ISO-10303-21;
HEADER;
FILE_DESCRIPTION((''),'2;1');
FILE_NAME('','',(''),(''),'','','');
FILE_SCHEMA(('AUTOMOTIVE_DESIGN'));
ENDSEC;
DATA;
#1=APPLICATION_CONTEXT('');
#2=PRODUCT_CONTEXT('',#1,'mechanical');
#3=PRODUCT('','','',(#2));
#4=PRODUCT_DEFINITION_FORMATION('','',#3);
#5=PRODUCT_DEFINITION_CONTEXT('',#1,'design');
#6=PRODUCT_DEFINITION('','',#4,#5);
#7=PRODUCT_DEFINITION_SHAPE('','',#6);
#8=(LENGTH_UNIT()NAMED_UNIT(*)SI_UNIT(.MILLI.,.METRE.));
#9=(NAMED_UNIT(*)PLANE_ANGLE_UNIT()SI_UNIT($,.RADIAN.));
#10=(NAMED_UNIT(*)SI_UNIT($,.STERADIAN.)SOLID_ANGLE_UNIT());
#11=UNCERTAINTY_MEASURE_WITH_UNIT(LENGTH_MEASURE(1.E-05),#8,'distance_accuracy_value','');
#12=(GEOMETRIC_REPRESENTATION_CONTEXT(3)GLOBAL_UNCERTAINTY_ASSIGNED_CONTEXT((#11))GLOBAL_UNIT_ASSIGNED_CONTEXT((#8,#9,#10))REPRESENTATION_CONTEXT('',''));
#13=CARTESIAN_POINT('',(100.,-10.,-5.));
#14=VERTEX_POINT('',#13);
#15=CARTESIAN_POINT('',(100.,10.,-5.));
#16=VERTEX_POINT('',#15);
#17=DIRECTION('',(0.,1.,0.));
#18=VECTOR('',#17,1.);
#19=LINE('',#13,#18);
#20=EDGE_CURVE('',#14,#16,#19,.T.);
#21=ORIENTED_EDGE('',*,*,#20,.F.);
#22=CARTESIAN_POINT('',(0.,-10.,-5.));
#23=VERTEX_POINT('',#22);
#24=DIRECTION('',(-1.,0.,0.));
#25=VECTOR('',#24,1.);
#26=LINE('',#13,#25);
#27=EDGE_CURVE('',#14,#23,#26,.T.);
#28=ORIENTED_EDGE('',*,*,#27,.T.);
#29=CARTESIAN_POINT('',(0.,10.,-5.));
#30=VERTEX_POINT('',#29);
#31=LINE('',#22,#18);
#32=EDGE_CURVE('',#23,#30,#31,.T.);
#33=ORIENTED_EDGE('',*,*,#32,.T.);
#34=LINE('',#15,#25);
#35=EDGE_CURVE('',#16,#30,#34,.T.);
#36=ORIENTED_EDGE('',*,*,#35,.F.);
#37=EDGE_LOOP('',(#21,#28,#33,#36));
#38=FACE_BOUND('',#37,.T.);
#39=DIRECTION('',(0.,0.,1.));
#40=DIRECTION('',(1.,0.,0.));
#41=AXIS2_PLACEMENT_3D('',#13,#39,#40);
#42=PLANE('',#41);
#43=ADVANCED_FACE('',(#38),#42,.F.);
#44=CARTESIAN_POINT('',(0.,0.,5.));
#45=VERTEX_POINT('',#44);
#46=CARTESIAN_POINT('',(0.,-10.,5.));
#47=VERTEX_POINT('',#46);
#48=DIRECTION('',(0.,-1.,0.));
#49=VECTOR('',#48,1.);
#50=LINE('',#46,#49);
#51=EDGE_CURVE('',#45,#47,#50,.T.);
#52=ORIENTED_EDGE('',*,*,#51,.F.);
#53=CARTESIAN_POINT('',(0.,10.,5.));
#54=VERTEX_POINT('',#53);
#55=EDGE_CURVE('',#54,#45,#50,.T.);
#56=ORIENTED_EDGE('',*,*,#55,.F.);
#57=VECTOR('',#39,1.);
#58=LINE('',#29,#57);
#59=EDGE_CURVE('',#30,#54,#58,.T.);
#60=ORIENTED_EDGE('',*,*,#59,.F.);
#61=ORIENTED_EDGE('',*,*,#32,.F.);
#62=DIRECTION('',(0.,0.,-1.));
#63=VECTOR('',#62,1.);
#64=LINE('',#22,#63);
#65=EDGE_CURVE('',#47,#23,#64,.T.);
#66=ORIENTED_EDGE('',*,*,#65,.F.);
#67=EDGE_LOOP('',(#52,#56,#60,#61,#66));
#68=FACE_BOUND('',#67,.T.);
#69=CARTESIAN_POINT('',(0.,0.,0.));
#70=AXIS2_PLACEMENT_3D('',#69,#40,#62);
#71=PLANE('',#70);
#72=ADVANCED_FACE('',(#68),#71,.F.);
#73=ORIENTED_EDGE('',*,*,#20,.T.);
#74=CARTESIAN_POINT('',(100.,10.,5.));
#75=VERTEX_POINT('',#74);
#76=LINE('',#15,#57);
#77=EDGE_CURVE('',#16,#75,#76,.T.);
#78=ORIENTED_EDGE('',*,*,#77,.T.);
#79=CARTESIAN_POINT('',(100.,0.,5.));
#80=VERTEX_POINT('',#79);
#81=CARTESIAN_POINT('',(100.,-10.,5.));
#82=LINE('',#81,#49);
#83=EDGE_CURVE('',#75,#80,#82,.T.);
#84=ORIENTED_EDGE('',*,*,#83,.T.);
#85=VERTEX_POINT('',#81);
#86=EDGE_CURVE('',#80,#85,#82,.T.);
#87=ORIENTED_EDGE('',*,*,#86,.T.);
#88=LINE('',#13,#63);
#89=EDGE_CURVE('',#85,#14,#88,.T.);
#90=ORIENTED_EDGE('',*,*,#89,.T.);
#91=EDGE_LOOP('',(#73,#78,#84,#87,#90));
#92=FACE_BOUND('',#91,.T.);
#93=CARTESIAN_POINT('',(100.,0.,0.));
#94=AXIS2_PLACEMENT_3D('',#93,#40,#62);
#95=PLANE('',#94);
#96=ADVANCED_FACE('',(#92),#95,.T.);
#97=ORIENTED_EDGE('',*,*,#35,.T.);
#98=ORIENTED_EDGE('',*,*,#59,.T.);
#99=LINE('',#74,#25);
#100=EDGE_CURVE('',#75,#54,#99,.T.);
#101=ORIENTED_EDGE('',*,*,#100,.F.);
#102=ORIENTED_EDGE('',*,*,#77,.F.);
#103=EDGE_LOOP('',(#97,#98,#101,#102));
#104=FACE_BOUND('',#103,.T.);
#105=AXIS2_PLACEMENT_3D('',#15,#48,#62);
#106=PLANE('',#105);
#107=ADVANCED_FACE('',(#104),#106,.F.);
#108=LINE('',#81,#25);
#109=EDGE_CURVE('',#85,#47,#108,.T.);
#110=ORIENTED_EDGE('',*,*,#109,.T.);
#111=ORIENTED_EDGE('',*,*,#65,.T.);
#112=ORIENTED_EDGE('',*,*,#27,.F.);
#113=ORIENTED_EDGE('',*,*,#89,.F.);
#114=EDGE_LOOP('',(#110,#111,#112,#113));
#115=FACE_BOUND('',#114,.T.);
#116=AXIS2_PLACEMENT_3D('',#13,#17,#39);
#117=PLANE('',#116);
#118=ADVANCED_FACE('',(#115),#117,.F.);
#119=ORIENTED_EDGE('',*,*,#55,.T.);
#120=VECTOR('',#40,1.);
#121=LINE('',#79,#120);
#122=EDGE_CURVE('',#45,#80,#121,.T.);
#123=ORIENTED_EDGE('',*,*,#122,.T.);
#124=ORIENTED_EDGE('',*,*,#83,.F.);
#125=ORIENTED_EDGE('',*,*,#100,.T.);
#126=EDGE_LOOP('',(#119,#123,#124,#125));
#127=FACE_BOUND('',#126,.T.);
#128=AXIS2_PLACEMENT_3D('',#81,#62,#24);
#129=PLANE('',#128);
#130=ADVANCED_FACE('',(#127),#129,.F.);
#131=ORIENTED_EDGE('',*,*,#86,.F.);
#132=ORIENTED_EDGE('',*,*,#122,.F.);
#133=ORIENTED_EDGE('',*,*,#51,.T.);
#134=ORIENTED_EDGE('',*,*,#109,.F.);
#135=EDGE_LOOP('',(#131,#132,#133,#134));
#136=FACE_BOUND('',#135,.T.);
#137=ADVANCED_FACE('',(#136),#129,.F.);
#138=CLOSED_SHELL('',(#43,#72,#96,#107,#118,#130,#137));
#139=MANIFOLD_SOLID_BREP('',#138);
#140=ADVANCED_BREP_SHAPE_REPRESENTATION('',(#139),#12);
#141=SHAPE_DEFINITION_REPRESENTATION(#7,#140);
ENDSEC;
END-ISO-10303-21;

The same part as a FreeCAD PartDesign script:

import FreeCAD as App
import Part
import Sketcher
from FreeCAD import Vector
Q = App.Units.Quantity


def add_polygon(sketch, points):
    """Adds a closed chain of lines whose ends are joined by coincident constraints."""
    first, n = sketch.GeometryCount, len(points)
    for a, b in zip(points, points[1:] + points[:1]):
        sketch.addGeometry(Part.LineSegment(App.Vector(*a, 0), App.Vector(*b, 0)), False)
    for i in range(n):
        sketch.addConstraint(Sketcher.Constraint("Coincident", first + i, 2, first + (i + 1) % n, 1))

doc = App.newDocument("Part")
body = doc.addObject("PartDesign::Body", "Body")

sketch1 = body.newObject("Sketcher::SketchObject", "Sketch")
sketch1.AttachmentSupport = (doc.getObject("YZ_Plane"), [""])
sketch1.MapMode = "FlatFace"
add_polygon(sketch1, [(10, 5), (-10, 5), (-10, -5), (10, -5)])
sketch1.addConstraint([
    Sketcher.Constraint("Horizontal", 0),
    Sketcher.Constraint("Vertical", 1),
    Sketcher.Constraint("Horizontal", 2),
    Sketcher.Constraint("Vertical", 3),
    Sketcher.Constraint("Symmetric", 0, 2, 2, 2, -1, 1),
    Sketcher.Constraint("DistanceX", 0, 2, 0, 1, Q("20 mm")),
    Sketcher.Constraint("DistanceY", 1, 2, 1, 1, Q("10 mm")),
])
pad1 = body.newObject("PartDesign::Pad", "Pad")
pad1.Profile = sketch1
pad1.Length = 100

doc.recompute()
